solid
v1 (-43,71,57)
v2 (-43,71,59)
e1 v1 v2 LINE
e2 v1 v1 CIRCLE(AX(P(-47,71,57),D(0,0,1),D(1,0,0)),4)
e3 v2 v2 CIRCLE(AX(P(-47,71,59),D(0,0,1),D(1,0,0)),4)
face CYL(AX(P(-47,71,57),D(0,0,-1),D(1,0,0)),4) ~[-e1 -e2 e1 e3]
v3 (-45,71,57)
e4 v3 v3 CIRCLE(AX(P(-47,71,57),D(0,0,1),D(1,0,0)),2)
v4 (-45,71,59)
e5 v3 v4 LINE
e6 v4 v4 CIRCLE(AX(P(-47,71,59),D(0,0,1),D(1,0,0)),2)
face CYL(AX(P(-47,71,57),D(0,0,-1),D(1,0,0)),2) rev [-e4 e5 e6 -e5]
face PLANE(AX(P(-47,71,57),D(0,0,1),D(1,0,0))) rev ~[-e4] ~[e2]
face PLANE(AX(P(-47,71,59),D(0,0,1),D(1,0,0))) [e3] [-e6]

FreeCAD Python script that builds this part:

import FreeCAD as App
import Part
import Sketcher

V = App.Vector

doc = App.newDocument("Part")
params = doc.addObject("Spreadsheet::Sheet", "Params")
for row, (alias, value) in enumerate([
    ("sketch1_diameter", "4 mm"),
    ("pad1_length", "2 mm"),
    ("sketch2_diameter", "8 mm"),
    ("pad2_length", "2 mm"),
], start=1):
    params.set(f"A{row}", alias)
    params.set(f"B{row}", "=" + value)
    params.setAlias(f"B{row}", alias)

body = doc.addObject("PartDesign::Body", "Body")

sketch1 = body.newObject("Sketcher::SketchObject", "Sketch")
sketch1.AttachmentSupport = (doc.getObject("XY_Plane"), [""])
sketch1.MapMode = "FlatFace"
sketch1.addGeometry(Part.Circle(V(0, 0, 0), V(0, 0, 1), 2), False)
sketch1.addConstraint(Sketcher.Constraint("Coincident", 0, 3, -1, 1))
sketch1.addConstraint(Sketcher.Constraint("Diameter", 0, 4.0))
sketch1.setExpression("Constraints[1]", "Params.sketch1_diameter")
pad1 = body.newObject("PartDesign::Pad", "Pad")
pad1.Profile = sketch1
pad1.setExpression("Length", "Params.pad1_length")
body2 = doc.addObject("PartDesign::Body", "Body001")

sketch2 = body2.newObject("Sketcher::SketchObject", "Sketch001")
sketch2.AttachmentSupport = (doc.getObject("XY_Plane001"), [""])
sketch2.MapMode = "FlatFace"
sketch2.addGeometry(Part.Circle(V(0, 0, 0), V(0, 0, 1), 4), False)
sketch2.addConstraint(Sketcher.Constraint("Coincident", 0, 3, -1, 1))
sketch2.addConstraint(Sketcher.Constraint("Diameter", 0, 8.0))
sketch2.setExpression("Constraints[1]", "Params.sketch2_diameter")
pad2 = body2.newObject("PartDesign::Pad", "Pad001")
pad2.Profile = sketch2
pad2.setExpression("Length", "Params.pad2_length")
doc.recompute()

boolean = body2.newObject("PartDesign::Boolean", "Boolean")
boolean.Type = "Cut"
boolean.addObjects([body])
body3 = doc.addObject("PartDesign::Body", "Body002")
doc.recompute()

body2.Placement = App.Placement(V(-47, 71, 57), App.Rotation(V(0, 0, 1), 0))
boolean2 = body3.newObject("PartDesign::Boolean", "Boolean001")
boolean2.Type = "Fuse"
boolean2.addObjects([body2])

doc.recompute()
